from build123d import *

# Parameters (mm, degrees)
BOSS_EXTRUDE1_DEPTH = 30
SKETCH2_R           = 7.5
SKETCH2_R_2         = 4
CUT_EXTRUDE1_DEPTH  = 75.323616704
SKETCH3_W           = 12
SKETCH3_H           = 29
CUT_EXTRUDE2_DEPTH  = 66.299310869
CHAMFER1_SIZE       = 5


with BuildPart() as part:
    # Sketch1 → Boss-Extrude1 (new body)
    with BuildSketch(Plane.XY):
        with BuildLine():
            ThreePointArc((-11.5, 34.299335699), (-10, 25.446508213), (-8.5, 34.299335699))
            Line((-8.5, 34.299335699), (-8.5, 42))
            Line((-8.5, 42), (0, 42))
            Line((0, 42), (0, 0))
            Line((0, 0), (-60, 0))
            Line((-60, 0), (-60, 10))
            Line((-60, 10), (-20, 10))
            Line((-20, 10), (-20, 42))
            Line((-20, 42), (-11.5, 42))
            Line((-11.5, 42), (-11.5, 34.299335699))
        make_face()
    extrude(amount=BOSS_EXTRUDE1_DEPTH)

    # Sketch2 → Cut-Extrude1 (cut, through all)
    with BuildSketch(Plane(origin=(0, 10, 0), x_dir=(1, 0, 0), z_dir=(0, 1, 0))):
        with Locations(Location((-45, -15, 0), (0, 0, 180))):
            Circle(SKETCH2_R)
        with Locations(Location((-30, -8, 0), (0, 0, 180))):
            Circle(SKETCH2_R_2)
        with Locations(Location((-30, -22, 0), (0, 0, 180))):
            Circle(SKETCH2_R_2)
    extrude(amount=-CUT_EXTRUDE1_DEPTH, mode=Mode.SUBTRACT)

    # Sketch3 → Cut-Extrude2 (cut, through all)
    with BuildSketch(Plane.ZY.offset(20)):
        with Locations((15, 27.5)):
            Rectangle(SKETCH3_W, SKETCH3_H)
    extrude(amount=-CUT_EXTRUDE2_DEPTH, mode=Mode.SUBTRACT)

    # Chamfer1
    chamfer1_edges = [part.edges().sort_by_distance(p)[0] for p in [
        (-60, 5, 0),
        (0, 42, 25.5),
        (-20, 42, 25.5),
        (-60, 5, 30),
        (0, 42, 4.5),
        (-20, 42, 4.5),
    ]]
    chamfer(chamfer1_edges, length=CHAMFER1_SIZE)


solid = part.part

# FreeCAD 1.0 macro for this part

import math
import FreeCAD as App
import Part
import Sketcher
from FreeCAD import Vector


def edges_at(feature, points):
    """Names of the edges that pass closest to the given points."""
    edges = feature.Shape.Edges
    near = lambda p: min(range(len(edges)), key=lambda i: edges[i].distToShape(Part.Vertex(*p))[0])
    return sorted({f"Edge{near(p) + 1}" for p in points})


def add_polygon(sketch, points):
    """Adds a closed chain of lines whose ends are joined by coincident constraints."""
    first, n = sketch.GeometryCount, len(points)
    for a, b in zip(points, points[1:] + points[:1]):
        sketch.addGeometry(Part.LineSegment(App.Vector(*a, 0), App.Vector(*b, 0)), False)
    for i in range(n):
        sketch.addConstraint(Sketcher.Constraint("Coincident", first + i, 2, first + (i + 1) % n, 1))

doc = App.newDocument("Part")
params = doc.addObject("Spreadsheet::Sheet", "Params")
for row, (alias, value) in enumerate([
    ("sketch1_width", "40 mm"),
    ("sketch1_width2", "60 mm"),
    ("sketch1_height", "32 mm"),
    ("sketch1_height2", "10 mm"),
    ("sketch1_width3", "8.5 mm"),
    ("pad1_length", "30 mm"),
    ("sketch2_diameter", "15 mm"),
    ("sketch2_diameter2", "8 mm"),
    ("sketch3_width", "29 mm"),
    ("sketch3_height", "12 mm"),
    ("chamfer_size", "5 mm"),
], start=1):
    params.set(f"A{row}", alias)
    params.set(f"B{row}", "=" + value)
    params.setAlias(f"B{row}", alias)

body = doc.addObject("PartDesign::Body", "Body")

sketch1 = doc.addObject("Sketcher::SketchObject", "Sketch")
body.addObject(sketch1)
sketch1.AttachmentSupport = (doc.XY_Plane, [""])
sketch1.MapMode = "FlatFace"
sketch1.addGeometry([
    Part.ArcOfCircle(Part.Circle(Vector(-10, 30, 0), Vector(0, 0, 1), 4.553492), math.radians(109.233426), math.radians(430.766574)),
    Part.LineSegment(Vector(-11.5, 34.299336, 0), Vector(-11.5, 42, 0)),
    Part.LineSegment(Vector(-11.5, 42, 0), Vector(-20, 42, 0)),
    Part.LineSegment(Vector(-20, 42, 0), Vector(-20, 10, 0)),
    Part.LineSegment(Vector(-20, 10, 0), Vector(-60, 10, 0)),
    Part.LineSegment(Vector(-60, 10, 0), Vector(-60, 0, 0)),
    Part.LineSegment(Vector(-60, 0, 0), Vector(0, 0, 0)),
    Part.LineSegment(Vector(0, 0, 0), Vector(0, 42, 0)),
    Part.LineSegment(Vector(0, 42, 0), Vector(-8.5, 42, 0)),
    Part.LineSegment(Vector(-8.5, 42, 0), Vector(-8.5, 34.299336, 0)),
], False)
sketch1.addConstraint([
    Sketcher.Constraint("Coincident", 0, 1, 1, 1),
    Sketcher.Constraint("Coincident", 1, 2, 2, 1),
    Sketcher.Constraint("Coincident", 2, 2, 3, 1),
    Sketcher.Constraint("Coincident", 3, 2, 4, 1),
    Sketcher.Constraint("Coincident", 4, 2, 5, 1),
    Sketcher.Constraint("Coincident", 5, 2, 6, 1),
    Sketcher.Constraint("Coincident", 6, 2, 7, 1),
    Sketcher.Constraint("Coincident", 7, 2, 8, 1),
    Sketcher.Constraint("Coincident", 8, 2, 9, 1),
    Sketcher.Constraint("Coincident", 9, 2, 0, 2),
    Sketcher.Constraint("Vertical", 1),
    Sketcher.Constraint("Horizontal", 2),
    Sketcher.Constraint("Vertical", 3),
    Sketcher.Constraint("Horizontal", 4),
    Sketcher.Constraint("Vertical", 5),
    Sketcher.Constraint("Horizontal", 6),
    Sketcher.Constraint("Vertical", 7),
    Sketcher.Constraint("Horizontal", 8),
    Sketcher.Constraint("Vertical", 9),
    Sketcher.Constraint("Coincident", 6, 2, -1, 1),
    Sketcher.Constraint("Horizontal", 2, 2, 7, 2),
    Sketcher.Constraint("Horizontal", 0, 1, 9, 2),
    Sketcher.Constraint("Equal", 2, 8),
    Sketcher.Constraint("DistanceX", 4, 2, 4, 1, 40.0),
    Sketcher.Constraint("DistanceX", 6, 1, 6, 2, 60.0),
    Sketcher.Constraint("DistanceY", 3, 2, 3, 1, 32.0),
    Sketcher.Constraint("DistanceY", 5, 2, 5, 1, 10.0),
    Sketcher.Constraint("DistanceX", 2, 2, 2, 1, 8.5),
    Sketcher.Constraint("DistanceY", -1, 1, 0, 3, 30.0),
    Sketcher.Constraint("Radius", 0, 4.553492),
])
sketch1.setExpression("Constraints[23]", "Params.sketch1_width")
sketch1.setExpression("Constraints[24]", "Params.sketch1_width2")
sketch1.setExpression("Constraints[25]", "Params.sketch1_height")
sketch1.setExpression("Constraints[26]", "Params.sketch1_height2")
sketch1.setExpression("Constraints[27]", "Params.sketch1_width3")
pad1 = doc.addObject("PartDesign::Pad", "Pad")
body.addObject(pad1)
pad1.Profile = sketch1
pad1.setExpression("Length", "Params.pad1_length")

sketch2 = doc.addObject("Sketcher::SketchObject", "Sketch001")
body.addObject(sketch2)
sketch2.AttachmentSupport = (doc.XZ_Plane, [""])
sketch2.MapMode = "FlatFace"
sketch2.AttachmentOffset = App.Placement(Vector(0, 0, -10), App.Rotation())
sketch2.addGeometry([
    Part.Circle(Vector(-45, 15, 0), Vector(0, 0, 1), 7.5),
    Part.Circle(Vector(-30, 8, 0), Vector(0, 0, 1), 4),
    Part.Circle(Vector(-30, 22, 0), Vector(0, 0, 1), 4),
], False)
sketch2.addConstraint([
    Sketcher.Constraint("Equal", 1, 2),
    Sketcher.Constraint("Vertical", 1, 3, 2, 3),
    Sketcher.Constraint("Diameter", 0, 15.0),
    Sketcher.Constraint("Diameter", 1, 8.0),
    Sketcher.Constraint("DistanceX", 0, 3, -1, 1, 45.0),
    Sketcher.Constraint("DistanceY", -1, 1, 0, 3, 15.0),
    Sketcher.Constraint("DistanceX", 1, 3, -1, 1, 30.0),
    Sketcher.Constraint("DistanceY", -1, 1, 1, 3, 8.0),
    Sketcher.Constraint("DistanceY", -1, 1, 2, 3, 22.0),
])
sketch2.setExpression("Constraints[2]", "Params.sketch2_diameter")
sketch2.setExpression("Constraints[3]", "Params.sketch2_diameter2")
pocket1 = doc.addObject("PartDesign::Pocket", "Pocket")
body.addObject(pocket1)
pocket1.Profile = sketch2
pocket1.Type = "ThroughAll"
pocket1.Reversed = True

sketch3 = doc.addObject("Sketcher::SketchObject", "Sketch002")
body.addObject(sketch3)
sketch3.AttachmentSupport = (doc.YZ_Plane, [""])
sketch3.MapMode = "FlatFace"
sketch3.AttachmentOffset = App.Placement(Vector(0, 0, -20), App.Rotation())
add_polygon(sketch3, [(42, 9), (13, 9), (13, 21), (42, 21)])
sketch3.addConstraint([
    Sketcher.Constraint("Horizontal", 0),
    Sketcher.Constraint("Vertical", 1),
    Sketcher.Constraint("Horizontal", 2),
    Sketcher.Constraint("Vertical", 3),
    Sketcher.Constraint("DistanceX", 0, 2, 0, 1, 29.0),
    Sketcher.Constraint("DistanceY", 1, 1, 1, 2, 12.0),
    Sketcher.Constraint("DistanceX", -1, 1, 0, 2, 13.0),
    Sketcher.Constraint("DistanceY", -1, 1, 0, 2, 9.0),
])
sketch3.setExpression("Constraints[8]", "Params.sketch3_width")
sketch3.setExpression("Constraints[9]", "Params.sketch3_height")
pocket2 = doc.addObject("PartDesign::Pocket", "Pocket001")
body.addObject(pocket2)
pocket2.Profile = sketch3
pocket2.Type = "ThroughAll"
pocket2.Reversed = True
doc.recompute()

chamfer = doc.addObject("PartDesign::Chamfer", "Chamfer")
body.addObject(chamfer)
chamfer.Base = (pocket2, edges_at(pocket2, [
    (-60, 5, 0),
    (0, 42, 25.5),
    (-20, 42, 25.5),
    (-60, 5, 30),
    (0, 42, 4.5),
    (-20, 42, 4.5),
]))
chamfer.setExpression("Size", "Params.chamfer_size")

doc.recompute()
